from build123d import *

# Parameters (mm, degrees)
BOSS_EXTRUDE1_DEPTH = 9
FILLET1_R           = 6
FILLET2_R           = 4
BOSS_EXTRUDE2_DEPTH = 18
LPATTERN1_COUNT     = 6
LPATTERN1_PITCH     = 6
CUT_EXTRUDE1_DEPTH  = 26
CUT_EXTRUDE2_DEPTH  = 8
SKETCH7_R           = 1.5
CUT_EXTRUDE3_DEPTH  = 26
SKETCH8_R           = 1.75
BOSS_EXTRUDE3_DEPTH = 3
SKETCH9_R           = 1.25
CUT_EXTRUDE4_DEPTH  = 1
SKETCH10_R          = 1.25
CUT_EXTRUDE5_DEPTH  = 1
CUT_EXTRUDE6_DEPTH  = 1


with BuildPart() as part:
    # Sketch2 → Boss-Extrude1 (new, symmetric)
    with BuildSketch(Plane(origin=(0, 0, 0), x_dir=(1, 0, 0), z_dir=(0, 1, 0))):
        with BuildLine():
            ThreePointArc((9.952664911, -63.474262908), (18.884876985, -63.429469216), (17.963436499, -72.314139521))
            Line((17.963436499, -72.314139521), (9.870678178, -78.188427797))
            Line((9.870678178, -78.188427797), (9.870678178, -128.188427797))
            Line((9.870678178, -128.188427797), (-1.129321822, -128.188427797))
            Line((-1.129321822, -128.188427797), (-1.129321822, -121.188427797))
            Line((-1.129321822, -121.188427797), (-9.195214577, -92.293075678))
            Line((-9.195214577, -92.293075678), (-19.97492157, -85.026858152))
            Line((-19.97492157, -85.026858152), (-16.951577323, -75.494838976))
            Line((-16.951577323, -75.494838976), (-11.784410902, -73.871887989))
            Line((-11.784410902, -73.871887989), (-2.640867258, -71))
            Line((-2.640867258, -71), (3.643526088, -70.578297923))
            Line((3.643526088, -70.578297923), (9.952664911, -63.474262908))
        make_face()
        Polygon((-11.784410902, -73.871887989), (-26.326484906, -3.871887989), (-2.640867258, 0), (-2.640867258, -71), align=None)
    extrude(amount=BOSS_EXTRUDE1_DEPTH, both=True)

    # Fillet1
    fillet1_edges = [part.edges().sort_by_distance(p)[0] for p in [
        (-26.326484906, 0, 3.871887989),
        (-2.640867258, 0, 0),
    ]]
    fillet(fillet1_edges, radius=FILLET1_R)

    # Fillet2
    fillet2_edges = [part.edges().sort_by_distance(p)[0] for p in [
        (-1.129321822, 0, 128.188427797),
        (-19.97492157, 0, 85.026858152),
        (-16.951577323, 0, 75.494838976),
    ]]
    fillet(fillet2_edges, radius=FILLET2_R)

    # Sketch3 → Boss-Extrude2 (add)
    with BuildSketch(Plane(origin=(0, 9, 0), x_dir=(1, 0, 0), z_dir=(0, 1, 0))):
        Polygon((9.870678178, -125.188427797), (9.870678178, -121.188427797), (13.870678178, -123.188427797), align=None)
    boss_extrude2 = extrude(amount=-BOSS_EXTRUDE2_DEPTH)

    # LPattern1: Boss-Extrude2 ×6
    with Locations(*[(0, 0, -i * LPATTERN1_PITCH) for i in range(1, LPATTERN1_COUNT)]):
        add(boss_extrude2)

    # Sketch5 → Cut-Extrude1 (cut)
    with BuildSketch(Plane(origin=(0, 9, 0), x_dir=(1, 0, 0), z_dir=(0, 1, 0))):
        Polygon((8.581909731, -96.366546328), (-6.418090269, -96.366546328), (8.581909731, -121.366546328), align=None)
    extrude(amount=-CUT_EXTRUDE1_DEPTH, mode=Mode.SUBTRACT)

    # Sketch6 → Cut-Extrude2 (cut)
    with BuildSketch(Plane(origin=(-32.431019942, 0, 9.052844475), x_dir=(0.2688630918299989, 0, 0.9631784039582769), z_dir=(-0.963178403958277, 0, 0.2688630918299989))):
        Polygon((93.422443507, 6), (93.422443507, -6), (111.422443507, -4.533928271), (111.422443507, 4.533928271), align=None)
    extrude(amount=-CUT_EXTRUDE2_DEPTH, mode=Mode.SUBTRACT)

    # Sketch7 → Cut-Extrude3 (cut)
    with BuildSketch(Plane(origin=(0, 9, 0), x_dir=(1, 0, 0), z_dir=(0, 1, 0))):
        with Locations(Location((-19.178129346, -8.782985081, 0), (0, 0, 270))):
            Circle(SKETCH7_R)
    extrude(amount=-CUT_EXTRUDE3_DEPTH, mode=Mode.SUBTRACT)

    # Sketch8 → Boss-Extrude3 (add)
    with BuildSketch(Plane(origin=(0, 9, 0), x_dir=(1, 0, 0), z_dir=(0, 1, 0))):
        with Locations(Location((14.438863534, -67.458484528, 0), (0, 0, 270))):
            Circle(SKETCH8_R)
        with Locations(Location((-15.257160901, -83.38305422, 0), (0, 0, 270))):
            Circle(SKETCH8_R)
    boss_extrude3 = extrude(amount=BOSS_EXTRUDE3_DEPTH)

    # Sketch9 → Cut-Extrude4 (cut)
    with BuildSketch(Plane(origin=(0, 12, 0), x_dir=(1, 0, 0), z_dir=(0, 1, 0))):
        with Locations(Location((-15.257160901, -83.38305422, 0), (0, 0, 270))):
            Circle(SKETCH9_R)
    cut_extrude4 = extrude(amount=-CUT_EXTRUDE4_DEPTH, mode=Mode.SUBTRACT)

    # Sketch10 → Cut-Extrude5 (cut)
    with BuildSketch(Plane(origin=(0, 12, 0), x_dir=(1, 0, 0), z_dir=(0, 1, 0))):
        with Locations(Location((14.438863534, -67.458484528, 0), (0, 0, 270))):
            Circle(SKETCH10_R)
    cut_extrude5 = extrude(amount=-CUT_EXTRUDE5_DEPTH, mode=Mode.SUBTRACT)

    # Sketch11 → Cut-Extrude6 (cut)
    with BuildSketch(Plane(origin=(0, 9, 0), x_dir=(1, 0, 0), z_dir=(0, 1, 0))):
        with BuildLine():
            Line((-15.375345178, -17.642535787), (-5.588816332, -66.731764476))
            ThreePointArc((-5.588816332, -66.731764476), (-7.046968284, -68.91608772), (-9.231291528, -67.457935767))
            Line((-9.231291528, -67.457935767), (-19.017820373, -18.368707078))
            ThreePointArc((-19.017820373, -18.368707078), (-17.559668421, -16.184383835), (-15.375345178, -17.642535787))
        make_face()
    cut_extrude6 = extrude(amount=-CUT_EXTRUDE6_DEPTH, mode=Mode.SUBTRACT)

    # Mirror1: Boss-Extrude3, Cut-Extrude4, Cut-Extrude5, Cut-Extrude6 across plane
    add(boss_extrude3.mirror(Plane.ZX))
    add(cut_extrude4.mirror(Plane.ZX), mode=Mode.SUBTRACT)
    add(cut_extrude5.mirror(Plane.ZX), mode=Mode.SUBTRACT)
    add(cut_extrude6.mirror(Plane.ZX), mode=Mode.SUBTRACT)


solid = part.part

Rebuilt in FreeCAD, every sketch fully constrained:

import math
import FreeCAD as App
import Part
import Sketcher
Q = App.Units.Quantity


def edges_at(feature, points):
    """Names of the edges that pass closest to the given points."""
    edges = feature.Shape.Edges
    near = lambda p: min(range(len(edges)), key=lambda i: edges[i].distToShape(Part.Vertex(*p))[0])
    return sorted({f"Edge{near(p) + 1}" for p in points})

doc = App.newDocument("Part")
body = doc.addObject("PartDesign::Body", "Body")

# Sketch on XZ plane
sketch1 = body.newObject("Sketcher::SketchObject", "Sketch")
sketch1.AttachmentSupport = (doc.getObject("XZ_Plane"), [""])
sketch1.MapMode = "FlatFace"
sketch1.addGeometry(Part.ArcOfCircle(Part.Circle(App.Vector(14.438864, 67.458485, 0), App.Vector(0, 0, 1), 6), math.radians(-138.391516), math.radians(54.025238)), False)
sketch1.addGeometry(Part.LineSegment(App.Vector(9.952665, 63.474263, 0), App.Vector(3.643526, 70.578298, 0)), False)
sketch1.addGeometry(Part.LineSegment(App.Vector(3.643526, 70.578298, 0), App.Vector(-2.640867, 71, 0)), False)
sketch1.addGeometry(Part.LineSegment(App.Vector(-2.640867, 71, 0), App.Vector(-2.640867, 0, 0)), False)
sketch1.addGeometry(Part.LineSegment(App.Vector(-2.640867, 0, 0), App.Vector(-26.326485, 3.871888, 0)), False)
sketch1.addGeometry(Part.LineSegment(App.Vector(-26.326485, 3.871888, 0), App.Vector(-11.784411, 73.871888, 0)), False)
sketch1.addGeometry(Part.LineSegment(App.Vector(-11.784411, 73.871888, 0), App.Vector(-16.951577, 75.494839, 0)), False)
sketch1.addGeometry(Part.LineSegment(App.Vector(-16.951577, 75.494839, 0), App.Vector(-19.974922, 85.026858, 0)), False)
sketch1.addGeometry(Part.LineSegment(App.Vector(-19.974922, 85.026858, 0), App.Vector(-9.195215, 92.293076, 0)), False)
sketch1.addGeometry(Part.LineSegment(App.Vector(-9.195215, 92.293076, 0), App.Vector(-1.129322, 121.188428, 0)), False)
sketch1.addGeometry(Part.LineSegment(App.Vector(-1.129322, 121.188428, 0), App.Vector(-1.129322, 128.188428, 0)), False)
sketch1.addGeometry(Part.LineSegment(App.Vector(-1.129322, 128.188428, 0), App.Vector(9.870678, 128.188428, 0)), False)
sketch1.addGeometry(Part.LineSegment(App.Vector(9.870678, 128.188428, 0), App.Vector(9.870678, 78.188428, 0)), False)
sketch1.addGeometry(Part.LineSegment(App.Vector(9.870678, 78.188428, 0), App.Vector(17.963436, 72.31414, 0)), False)
sketch1.addConstraint(Sketcher.Constraint("Tangent", 0, 1, 1, 1))
sketch1.addConstraint(Sketcher.Constraint("Coincident", 1, 2, 2, 1))
sketch1.addConstraint(Sketcher.Constraint("Coincident", 2, 2, 3, 1))
sketch1.addConstraint(Sketcher.Constraint("Coincident", 3, 2, 4, 1))
sketch1.addConstraint(Sketcher.Constraint("Coincident", 4, 2, 5, 1))
sketch1.addConstraint(Sketcher.Constraint("Coincident", 5, 2, 6, 1))
sketch1.addConstraint(Sketcher.Constraint("Coincident", 6, 2, 7, 1))
sketch1.addConstraint(Sketcher.Constraint("Coincident", 7, 2, 8, 1))
sketch1.addConstraint(Sketcher.Constraint("Coincident", 8, 2, 9, 1))
sketch1.addConstraint(Sketcher.Constraint("Coincident", 9, 2, 10, 1))
sketch1.addConstraint(Sketcher.Constraint("Coincident", 10, 2, 11, 1))
sketch1.addConstraint(Sketcher.Constraint("Coincident", 11, 2, 12, 1))
sketch1.addConstraint(Sketcher.Constraint("Coincident", 12, 2, 13, 1))
sketch1.addConstraint(Sketcher.Constraint("Tangent", 13, 2, 0, 2))
sketch1.addConstraint(Sketcher.Constraint("Vertical", 3))
sketch1.addConstraint(Sketcher.Constraint("Vertical", 10))
sketch1.addConstraint(Sketcher.Constraint("Horizontal", 11))
sketch1.addConstraint(Sketcher.Constraint("Vertical", 12))
sketch1.addConstraint(Sketcher.Constraint("PointOnObject", 3, 2, -1))
sketch1.addConstraint(Sketcher.Constraint("Equal", 7, 13))
sketch1.addConstraint(Sketcher.Constraint("Radius", 0, Q("6 mm")))
sketch1.addConstraint(Sketcher.Constraint("DistanceX", 11, 1, 11, 2, Q("11 mm")))
sketch1.addConstraint(Sketcher.Constraint("DistanceY", 3, 2, 3, 1, Q("71 mm")))
sketch1.addConstraint(Sketcher.Constraint("DistanceY", 10, 1, 10, 2, Q("7 mm")))
sketch1.addConstraint(Sketcher.Constraint("DistanceY", 12, 2, 12, 1, Q("50 mm")))
sketch1.addConstraint(Sketcher.Constraint("Distance", 4, Q("24 mm")))
sketch1.addConstraint(Sketcher.Constraint("Distance", 7, Q("10 mm")))
sketch1.addConstraint(Sketcher.Constraint("Distance", 8, Q("13 mm")))
sketch1.addConstraint(Sketcher.Constraint("Distance", 9, Q("30 mm")))
sketch1.addConstraint(Sketcher.Constraint("DistanceY", 4, 2, 5, 2, Q("70 mm")))
sketch1.addConstraint(Sketcher.Constraint("DistanceX", 0, 1, 0, 3, Q("4.486199 mm")))
sketch1.addConstraint(Sketcher.Constraint("DistanceX", 7, 2, 9, 2, Q("18.8456 mm")))
sketch1.addConstraint(Sketcher.Constraint("Distance", 5, Q("71.494559 mm")))
sketch1.addConstraint(Sketcher.Constraint("Distance", 6, Q("5.416048 mm")))
sketch1.addConstraint(Sketcher.Constraint("DistanceX", 5, 2, -1, 1, Q("11.784411 mm")))
sketch1.addConstraint(Sketcher.Constraint("DistanceY", -1, 1, 6, 2, Q("75.494839 mm")))
sketch1.addConstraint(Sketcher.Constraint("DistanceX", 7, 2, -1, 1, Q("19.974922 mm")))
sketch1.addConstraint(Sketcher.Constraint("DistanceY", -1, 1, 7, 2, Q("85.026858 mm")))
sketch1.addConstraint(Sketcher.Constraint("DistanceY", -1, 1, 13, 2, Q("72.31414 mm")))
sketch1.addConstraint(Sketcher.Constraint("DistanceX", 1, 2, 0, 1, Q("6.309139 mm")))
sketch1.addConstraint(Sketcher.Constraint("DistanceX", 2, 2, 0, 3, Q("17.079731 mm")))
pad1 = body.newObject("PartDesign::Pad", "Pad")
pad1.Profile = sketch1
pad1.Length = 18
pad1.Midplane = True
doc.recompute()

fillet = body.newObject("PartDesign::Fillet", "Fillet")
fillet.Base = (pad1, edges_at(pad1, [(-26.326, 0, 3.872), (-2.641, 0, 0)]))
fillet.Radius = 6
doc.recompute()

fillet2 = body.newObject("PartDesign::Fillet", "Fillet001")
fillet2.Base = (fillet, edges_at(fillet, [(-1.129, 0, 128.188), (-19.975, 0, 85.027), (-16.952, 0, 75.495)]))
fillet2.Radius = 4

# Sketch on XZ plane
sketch2 = body.newObject("Sketcher::SketchObject", "Sketch001")
sketch2.AttachmentSupport = (doc.getObject("XZ_Plane"), [""])
sketch2.MapMode = "FlatFace"
sketch2.AttachmentOffset = App.Placement(App.Vector(0, 0, -9), App.Rotation())
sketch2.addGeometry(Part.LineSegment(App.Vector(9.870678, 121.188428, 0), App.Vector(9.870678, 125.188428, 0)), False)
sketch2.addGeometry(Part.LineSegment(App.Vector(9.870678, 125.188428, 0), App.Vector(13.870678, 123.188428, 0)), False)
sketch2.addGeometry(Part.LineSegment(App.Vector(13.870678, 123.188428, 0), App.Vector(9.870678, 121.188428, 0)), False)
sketch2.addConstraint(Sketcher.Constraint("Coincident", 0, 2, 1, 1))
sketch2.addConstraint(Sketcher.Constraint("Coincident", 1, 2, 2, 1))
sketch2.addConstraint(Sketcher.Constraint("Coincident", 2, 2, 0, 1))
sketch2.addConstraint(Sketcher.Constraint("Vertical", 0))
sketch2.addConstraint(Sketcher.Constraint("Equal", 1, 2))
sketch2.addConstraint(Sketcher.Constraint("DistanceY", 0, 1, 0, 2, Q("4 mm")))
sketch2.addConstraint(Sketcher.Constraint("DistanceX", 0, 2, 1, 2, Q("4 mm")))
sketch2.addConstraint(Sketcher.Constraint("DistanceX", -1, 1, 0, 2, Q("9.870678 mm")))
sketch2.addConstraint(Sketcher.Constraint("DistanceY", -1, 1, 0, 2, Q("125.188428 mm")))
pad2 = body.newObject("PartDesign::Pad", "Pad001")
pad2.Profile = sketch2
pad2.Length = 18
doc.recompute()

linearpattern = body.newObject("PartDesign::LinearPattern", "LinearPattern")
linearpattern.Originals = [pad2]
linearpattern.Direction = (doc.getObject("Z_Axis"), [""])
linearpattern.Mode = "offset"
linearpattern.Offset = 6
linearpattern.Occurrences = 6
linearpattern.Reversed = True
body.Tip = linearpattern

# Sketch on XZ plane
sketch3 = body.newObject("Sketcher::SketchObject", "Sketch002")
sketch3.AttachmentSupport = (doc.getObject("XZ_Plane"), [""])
sketch3.MapMode = "FlatFace"
sketch3.AttachmentOffset = App.Placement(App.Vector(0, 0, -9), App.Rotation())
sketch3.addGeometry(Part.LineSegment(App.Vector(8.58191, 96.366546, 0), App.Vector(-6.41809, 96.366546, 0)), False)
sketch3.addGeometry(Part.LineSegment(App.Vector(-6.41809, 96.366546, 0), App.Vector(8.58191, 121.366546, 0)), False)
sketch3.addGeometry(Part.LineSegment(App.Vector(8.58191, 121.366546, 0), App.Vector(8.58191, 96.366546, 0)), False)
sketch3.addConstraint(Sketcher.Constraint("Coincident", 0, 2, 1, 1))
sketch3.addConstraint(Sketcher.Constraint("Coincident", 1, 2, 2, 1))
sketch3.addConstraint(Sketcher.Constraint("Coincident", 2, 2, 0, 1))
sketch3.addConstraint(Sketcher.Constraint("Horizontal", 0))
sketch3.addConstraint(Sketcher.Constraint("Vertical", 2))
sketch3.addConstraint(Sketcher.Constraint("DistanceX", 0, 2, 0, 1, Q("15 mm")))
sketch3.addConstraint(Sketcher.Constraint("DistanceY", 2, 2, 2, 1, Q("25 mm")))
sketch3.addConstraint(Sketcher.Constraint("DistanceX", 0, 2, -1, 1, Q("6.41809 mm")))
sketch3.addConstraint(Sketcher.Constraint("DistanceY", -1, 1, 0, 2, Q("96.366546 mm")))
pocket1 = body.newObject("PartDesign::Pocket", "Pocket")
pocket1.Profile = sketch3
pocket1.Length = 26
pocket1.Reversed = True

# Sketch on an angled plane
sketch4 = body.newObject("Sketcher::SketchObject", "Sketch003")
sketch4.Placement = App.Placement(App.Vector(-32.43102, 0, 9.052844), App.Rotation(App.Vector(0.268863092, 0, 0.963178404), App.Vector(0, 1, 0), App.Vector(-0.963178404, 0, 0.268863092), "ZXY"))
sketch4.addGeometry(Part.LineSegment(App.Vector(93.422444, 6, 0), App.Vector(93.422444, -6, 0)), False)
sketch4.addGeometry(Part.LineSegment(App.Vector(93.422444, -6, 0), App.Vector(111.422444, -4.533928, 0)), False)
sketch4.addGeometry(Part.LineSegment(App.Vector(111.422444, -4.533928, 0), App.Vector(111.422444, 4.533928, 0)), False)
sketch4.addGeometry(Part.LineSegment(App.Vector(111.422444, 4.533928, 0), App.Vector(93.422444, 6, 0)), False)
sketch4.addConstraint(Sketcher.Constraint("Coincident", 0, 2, 1, 1))
sketch4.addConstraint(Sketcher.Constraint("Coincident", 1, 2, 2, 1))
sketch4.addConstraint(Sketcher.Constraint("Coincident", 2, 2, 3, 1))
sketch4.addConstraint(Sketcher.Constraint("Coincident", 3, 2, 0, 1))
sketch4.addConstraint(Sketcher.Constraint("Vertical", 0))
sketch4.addConstraint(Sketcher.Constraint("Vertical", 2))
sketch4.addConstraint(Sketcher.Constraint("Equal", 1, 3))
sketch4.addConstraint(Sketcher.Constraint("DistanceY", 0, 2, 0, 1, Q("12 mm")))
sketch4.addConstraint(Sketcher.Constraint("DistanceY", 0, 2, -1, 1, Q("6 mm")))
sketch4.addConstraint(Sketcher.Constraint("DistanceX", 0, 2, 1, 2, Q("18 mm")))
sketch4.addConstraint(Sketcher.Constraint("DistanceY", 2, 1, 2, 2, Q("9.067857 mm")))
sketch4.addConstraint(Sketcher.Constraint("DistanceX", -1, 1, 0, 2, Q("93.422444 mm")))
pocket2 = body.newObject("PartDesign::Pocket", "Pocket001")
pocket2.Profile = sketch4
pocket2.Length = 8

# Sketch on XZ plane
sketch5 = body.newObject("Sketcher::SketchObject", "Sketch004")
sketch5.AttachmentSupport = (doc.getObject("XZ_Plane"), [""])
sketch5.MapMode = "FlatFace"
sketch5.AttachmentOffset = App.Placement(App.Vector(0, 0, -9), App.Rotation())
sketch5.addGeometry(Part.Circle(App.Vector(-19.178129, 8.782985, 0), App.Vector(0, 0, 1), 1.5), False)
sketch5.addConstraint(Sketcher.Constraint("Diameter", 0, Q("3 mm")))
sketch5.addConstraint(Sketcher.Constraint("DistanceX", 0, 3, -1, 1, Q("19.178129 mm")))
sketch5.addConstraint(Sketcher.Constraint("DistanceY", -1, 1, 0, 3, Q("8.782985 mm")))
pocket3 = body.newObject("PartDesign::Pocket", "Pocket002")
pocket3.Profile = sketch5
pocket3.Length = 26
pocket3.Reversed = True

# Sketch on XZ plane
sketch6 = body.newObject("Sketcher::SketchObject", "Sketch005")
sketch6.AttachmentSupport = (doc.getObject("XZ_Plane"), [""])
sketch6.MapMode = "FlatFace"
sketch6.AttachmentOffset = App.Placement(App.Vector(0, 0, -9), App.Rotation())
sketch6.addGeometry(Part.Circle(App.Vector(14.438864, 67.458485, 0), App.Vector(0, 0, 1), 1.75), False)
sketch6.addGeometry(Part.Circle(App.Vector(-15.257161, 83.383054, 0), App.Vector(0, 0, 1), 1.75), False)
sketch6.addConstraint(Sketcher.Constraint("Equal", 0, 1))
sketch6.addConstraint(Sketcher.Constraint("Diameter", 0, Q("3.5 mm")))
sketch6.addConstraint(Sketcher.Constraint("DistanceX", 1, 3, -1, 1, Q("15.257161 mm")))
sketch6.addConstraint(Sketcher.Constraint("DistanceY", 0, 3, 1, 3, Q("15.92457 mm")))
sketch6.addConstraint(Sketcher.Constraint("DistanceX", -1, 1, 0, 3, Q("14.438864 mm")))
sketch6.addConstraint(Sketcher.Constraint("DistanceY", -1, 1, 0, 3, Q("67.458485 mm")))
pad3 = body.newObject("PartDesign::Pad", "Pad002")
pad3.Profile = sketch6
pad3.Length = 3
pad3.Reversed = True

# Sketch on XZ plane
sketch7 = body.newObject("Sketcher::SketchObject", "Sketch006")
sketch7.AttachmentSupport = (doc.getObject("XZ_Plane"), [""])
sketch7.MapMode = "FlatFace"
sketch7.AttachmentOffset = App.Placement(App.Vector(0, 0, -12), App.Rotation())
sketch7.addGeometry(Part.Circle(App.Vector(-15.257161, 83.383054, 0), App.Vector(0, 0, 1), 1.25), False)
sketch7.addConstraint(Sketcher.Constraint("Diameter", 0, Q("2.5 mm")))
sketch7.addConstraint(Sketcher.Constraint("DistanceX", 0, 3, -1, 1, Q("15.257161 mm")))
sketch7.addConstraint(Sketcher.Constraint("DistanceY", -1, 1, 0, 3, Q("83.383054 mm")))
pocket4 = body.newObject("PartDesign::Pocket", "Pocket003")
pocket4.Profile = sketch7
pocket4.Length = 1
pocket4.Reversed = True

# Sketch on XZ plane
sketch8 = body.newObject("Sketcher::SketchObject", "Sketch007")
sketch8.AttachmentSupport = (doc.getObject("XZ_Plane"), [""])
sketch8.MapMode = "FlatFace"
sketch8.AttachmentOffset = App.Placement(App.Vector(0, 0, -12), App.Rotation())
sketch8.addGeometry(Part.Circle(App.Vector(14.438864, 67.458485, 0), App.Vector(0, 0, 1), 1.25), False)
sketch8.addConstraint(Sketcher.Constraint("Diameter", 0, Q("2.5 mm")))
sketch8.addConstraint(Sketcher.Constraint("DistanceX", -1, 1, 0, 3, Q("14.438864 mm")))
sketch8.addConstraint(Sketcher.Constraint("DistanceY", -1, 1, 0, 3, Q("67.458485 mm")))
pocket5 = body.newObject("PartDesign::Pocket", "Pocket004")
pocket5.Profile = sketch8
pocket5.Length = 1
pocket5.Reversed = True

# Sketch on XZ plane
sketch9 = body.newObject("Sketcher::SketchObject", "Sketch008")
sketch9.AttachmentSupport = (doc.getObject("XZ_Plane"), [""])
sketch9.MapMode = "FlatFace"
sketch9.AttachmentOffset = App.Placement(App.Vector(0, 0, -9), App.Rotation())
sketch9.addGeometry(Part.LineSegment(App.Vector(-5.588816, 66.731764, 0), App.Vector(-15.375345, 17.642536, 0)), False)
sketch9.addGeometry(Part.ArcOfCircle(Part.Circle(App.Vector(-17.196583, 18.005621, 0), App.Vector(0, 0, 1), 1.857078), math.radians(168.725218), math.radians(348.725218)), False)
sketch9.addGeometry(Part.LineSegment(App.Vector(-19.01782, 18.368707, 0), App.Vector(-9.231292, 67.457936, 0)), False)
sketch9.addGeometry(Part.ArcOfCircle(Part.Circle(App.Vector(-7.410054, 67.09485, 0), App.Vector(0, 0, 1), 1.857078), math.radians(-11.274782), math.radians(168.725218)), False)
sketch9.addConstraint(Sketcher.Constraint("Tangent", 0, 2, 1, 2))
sketch9.addConstraint(Sketcher.Constraint("Tangent", 1, 1, 2, 1))
sketch9.addConstraint(Sketcher.Constraint("Tangent", 2, 2, 3, 2))
sketch9.addConstraint(Sketcher.Constraint("Tangent", 3, 1, 0, 1))
sketch9.addConstraint(Sketcher.Constraint("Equal", 1, 3))
sketch9.addConstraint(Sketcher.Constraint("Radius", 1, Q("1.857078 mm")))
sketch9.addConstraint(Sketcher.Constraint("DistanceY", 0, 2, 2, 2, Q("49.8154 mm")))
sketch9.addConstraint(Sketcher.Constraint("DistanceY", -1, 1, 1, 3, Q("18.005621 mm")))
sketch9.addConstraint(Sketcher.Constraint("DistanceY", -1, 1, 3, 3, Q("67.09485 mm")))
sketch9.addConstraint(Sketcher.Constraint("DistanceX", 1, 1, -1, 1, Q("19.01782 mm")))
pocket6 = body.newObject("PartDesign::Pocket", "Pocket005")
pocket6.Profile = sketch9
pocket6.Length = 1
pocket6.Reversed = True
doc.recompute()

mirrored = body.newObject("PartDesign::Mirrored", "Mirrored")
mirrored.Originals = [pad3, pocket4, pocket5, pocket6]
mirrored.MirrorPlane = (doc.getObject("XZ_Plane"), [""])
body.Tip = mirrored

doc.recompute()
